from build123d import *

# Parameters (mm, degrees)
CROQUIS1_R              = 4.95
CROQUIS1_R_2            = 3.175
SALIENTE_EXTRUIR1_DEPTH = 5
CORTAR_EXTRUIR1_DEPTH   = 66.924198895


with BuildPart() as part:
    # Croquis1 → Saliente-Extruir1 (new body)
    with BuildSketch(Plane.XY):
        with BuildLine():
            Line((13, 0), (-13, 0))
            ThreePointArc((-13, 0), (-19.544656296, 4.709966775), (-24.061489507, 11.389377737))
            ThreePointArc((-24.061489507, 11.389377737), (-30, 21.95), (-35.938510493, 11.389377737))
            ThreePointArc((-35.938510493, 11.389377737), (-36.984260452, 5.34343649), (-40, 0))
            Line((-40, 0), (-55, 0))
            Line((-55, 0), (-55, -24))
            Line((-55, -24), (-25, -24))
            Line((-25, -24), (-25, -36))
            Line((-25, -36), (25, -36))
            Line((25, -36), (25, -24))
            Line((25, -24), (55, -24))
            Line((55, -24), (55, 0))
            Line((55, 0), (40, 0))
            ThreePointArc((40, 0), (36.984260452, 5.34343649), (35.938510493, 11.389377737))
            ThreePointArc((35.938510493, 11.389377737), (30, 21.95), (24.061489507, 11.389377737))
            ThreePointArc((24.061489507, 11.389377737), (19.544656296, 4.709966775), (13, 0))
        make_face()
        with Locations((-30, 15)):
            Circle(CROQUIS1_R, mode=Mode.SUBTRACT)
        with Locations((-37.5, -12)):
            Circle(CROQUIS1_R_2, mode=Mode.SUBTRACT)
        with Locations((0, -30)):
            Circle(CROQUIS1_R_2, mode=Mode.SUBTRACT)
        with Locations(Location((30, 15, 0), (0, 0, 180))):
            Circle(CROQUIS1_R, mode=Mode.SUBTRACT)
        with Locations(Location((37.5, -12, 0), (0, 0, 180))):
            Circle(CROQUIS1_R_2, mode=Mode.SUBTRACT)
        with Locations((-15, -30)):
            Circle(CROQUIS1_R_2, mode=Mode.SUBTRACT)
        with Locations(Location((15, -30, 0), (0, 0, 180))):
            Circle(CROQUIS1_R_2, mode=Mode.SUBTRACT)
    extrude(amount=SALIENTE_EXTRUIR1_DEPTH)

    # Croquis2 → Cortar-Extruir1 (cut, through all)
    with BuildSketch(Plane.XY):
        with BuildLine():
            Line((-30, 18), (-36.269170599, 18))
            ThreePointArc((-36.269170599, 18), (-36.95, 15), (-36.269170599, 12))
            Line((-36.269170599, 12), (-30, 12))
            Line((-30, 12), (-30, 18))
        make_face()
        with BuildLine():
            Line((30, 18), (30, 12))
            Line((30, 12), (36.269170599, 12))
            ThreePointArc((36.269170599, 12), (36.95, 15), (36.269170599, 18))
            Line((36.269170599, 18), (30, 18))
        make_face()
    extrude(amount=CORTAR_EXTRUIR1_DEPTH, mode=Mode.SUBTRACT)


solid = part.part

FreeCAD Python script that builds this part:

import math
import FreeCAD as App
import Part
import Sketcher

V = App.Vector
Q = App.Units.Quantity

doc = App.newDocument("Part")
body = doc.addObject("PartDesign::Body", "Body")

# Sketch on XY plane
sketch1 = body.newObject("Sketcher::SketchObject", "Sketch")
sketch1.AttachmentSupport = (doc.getObject("XY_Plane"), [""])
sketch1.MapMode = "FlatFace"
sketch1.addGeometry([
    Part.LineSegment(V(13, 0, 0), V(-13, 0, 0)),  # 0
    Part.ArcOfCircle(Part.Circle(V(-3, 20.7, 0), V(0, 0, 1), 23), math.radians(-156), math.radians(-116)),  # 1
    Part.ArcOfCircle(Part.Circle(V(-30, 15, 0), V(0, 0, 1), 7), math.radians(-31), math.radians(211)),  # 2
    Part.ArcOfCircle(Part.Circle(V(-53.9, 11.4, 0), V(0, 0, 1), 18), math.radians(-39), math.radians(0)),  # 3
    Part.LineSegment(V(-40, 0, 0), V(-55, 0, 0)),  # 4
    Part.LineSegment(V(-55, 0, 0), V(-55, -24, 0)),  # 5
    Part.LineSegment(V(-55, -24, 0), V(-25, -24, 0)),  # 6
    Part.LineSegment(V(-25, -24, 0), V(-25, -36, 0)),  # 7
    Part.LineSegment(V(-25, -36, 0), V(25, -36, 0)),  # 8
    Part.LineSegment(V(25, -36, 0), V(25, -24, 0)),  # 9
    Part.LineSegment(V(25, -24, 0), V(55, -24, 0)),  # 10
    Part.LineSegment(V(55, -24, 0), V(55, 0, 0)),  # 11
    Part.LineSegment(V(55, 0, 0), V(40, 0, 0)),  # 12
    Part.ArcOfCircle(Part.Circle(V(53.9, 11.4, 0), V(0, 0, 1), 18), math.radians(180), math.radians(219)),  # 13
    Part.ArcOfCircle(Part.Circle(V(30, 15, 0), V(0, 0, 1), 7), math.radians(-31), math.radians(211)),  # 14
    Part.ArcOfCircle(Part.Circle(V(3, 20.7, 0), V(0, 0, 1), 23), math.radians(-64), math.radians(-24)),  # 15
    Part.Circle(V(-15, -30, 0), V(0, 0, 1), 3.2),  # 16
    Part.Circle(V(-37.5, -12, 0), V(0, 0, 1), 3.2),  # 17
    Part.Circle(V(0, -30, 0), V(0, 0, 1), 3.2),  # 18
    Part.Circle(V(15, -30, 0), V(0, 0, 1), 3.2),  # 19
    Part.Circle(V(37.5, -12, 0), V(0, 0, 1), 3.2),  # 20
    Part.Circle(V(-30, 15, 0), V(0, 0, 1), 5),  # 21
    Part.Circle(V(30, 15, 0), V(0, 0, 1), 5),  # 22
], False)
sketch1.addConstraint([
    Sketcher.Constraint("Coincident", 0, 2, 1, 2),
    Sketcher.Constraint("Coincident", 1, 1, 2, 1),
    Sketcher.Constraint("Coincident", 2, 2, 3, 2),
    Sketcher.Constraint("Coincident", 3, 1, 4, 1),
    Sketcher.Constraint("Coincident", 4, 2, 5, 1),
    Sketcher.Constraint("Coincident", 5, 2, 6, 1),
    Sketcher.Constraint("Coincident", 6, 2, 7, 1),
    Sketcher.Constraint("Coincident", 7, 2, 8, 1),
    Sketcher.Constraint("Coincident", 8, 2, 9, 1),
    Sketcher.Constraint("Coincident", 9, 2, 10, 1),
    Sketcher.Constraint("Coincident", 10, 2, 11, 1),
    Sketcher.Constraint("Coincident", 11, 2, 12, 1),
    Sketcher.Constraint("Coincident", 12, 2, 13, 2),
    Sketcher.Constraint("Coincident", 13, 1, 14, 1),
    Sketcher.Constraint("Coincident", 14, 2, 15, 2),
    Sketcher.Constraint("Coincident", 15, 1, 0, 1),
    Sketcher.Constraint("Horizontal", 0),
    Sketcher.Constraint("Horizontal", 4),
    Sketcher.Constraint("Vertical", 5),
    Sketcher.Constraint("Horizontal", 6),
    Sketcher.Constraint("Vertical", 7),
    Sketcher.Constraint("Horizontal", 8),
    Sketcher.Constraint("Vertical", 9),
    Sketcher.Constraint("Horizontal", 10),
    Sketcher.Constraint("Vertical", 11),
    Sketcher.Constraint("Horizontal", 12),
    Sketcher.Constraint("Coincident", 21, 3, 2, 3),
    Sketcher.Constraint("Coincident", 22, 3, 14, 3),
    Sketcher.Constraint("Equal", 3, 13),
    Sketcher.Constraint("Equal", 2, 14),
    Sketcher.Constraint("Equal", 1, 15),
    Sketcher.Constraint("Equal", 16, 17),
    Sketcher.Constraint("Equal", 17, 18),
    Sketcher.Constraint("Equal", 18, 19),
    Sketcher.Constraint("Equal", 19, 20),
    Sketcher.Constraint("Equal", 21, 22),
    Sketcher.Constraint("Symmetric", 4, 2, 11, 2, -1, 1),
    Sketcher.Constraint("Symmetric", 0, 2, 15, 1, -1, 1),
    Sketcher.Constraint("Symmetric", 3, 3, 13, 3, -2),
    Sketcher.Constraint("Symmetric", 2, 3, 14, 3, -2),
    Sketcher.Constraint("Symmetric", 16, 3, 19, 3, -2),
    Sketcher.Constraint("Symmetric", 17, 3, 20, 3, -2),
    Sketcher.Constraint("Symmetric", 6, 2, 9, 2, -2),
    Sketcher.Constraint("PointOnObject", 18, 3, -2),
    Sketcher.Constraint("PointOnObject", 3, 1, -1),
    Sketcher.Constraint("Horizontal", 1, 3, 15, 3),
    Sketcher.Constraint("Horizontal", 16, 3, 18, 3),
    Sketcher.Constraint("Horizontal", 13, 3, 1, 1),
    Sketcher.Constraint("Horizontal", 1, 1, 2, 2),
    Sketcher.Constraint("Radius", 1, Q("23 mm")),
    Sketcher.Constraint("Radius", 3, Q("18 mm")),
    Sketcher.Constraint("Diameter", 21, Q("9.9 mm")),
    Sketcher.Constraint("Diameter", 16, Q("6.35 mm")),
    Sketcher.Constraint("DistanceX", 0, 2, 0, 1, Q("26 mm")),
    Sketcher.Constraint("DistanceX", 4, 2, 4, 1, Q("15 mm")),
    Sketcher.Constraint("DistanceX", 6, 1, 6, 2, Q("30 mm")),
    Sketcher.Constraint("DistanceX", 8, 1, 8, 2, Q("50 mm")),
    Sketcher.Constraint("DistanceY", 5, 2, 5, 1, Q("24 mm")),
    Sketcher.Constraint("DistanceY", 7, 2, 7, 1, Q("12 mm")),
    Sketcher.Constraint("Radius", 2, Q("6.95 mm")),
    Sketcher.Constraint("DistanceX", 2, 3, -1, 1, Q("30 mm")),
    Sketcher.Constraint("DistanceY", -1, 1, 2, 3, Q("15 mm")),
    Sketcher.Constraint("DistanceX", 16, 3, -1, 1, Q("15 mm")),
    Sketcher.Constraint("DistanceY", 16, 3, -1, 1, Q("30 mm")),
    Sketcher.Constraint("DistanceY", 17, 3, -1, 1, Q("12 mm")),
    Sketcher.Constraint("DistanceX", 17, 3, -1, 1, Q("37.5 mm")),
])
pad1 = body.newObject("PartDesign::Pad", "Pad")
pad1.Profile = sketch1
pad1.Length = 5

# Sketch on XY plane
sketch2 = body.newObject("Sketcher::SketchObject", "Sketch001")
sketch2.AttachmentSupport = (doc.getObject("XY_Plane"), [""])
sketch2.MapMode = "FlatFace"
sketch2.addGeometry([
    Part.LineSegment(V(-30, 18, 0), V(-36, 18, 0)),  # 0
    Part.ArcOfCircle(Part.Circle(V(-30, 15, 0), V(0, 0, 1), 7), math.radians(154), math.radians(206)),  # 1
    Part.LineSegment(V(-36, 12, 0), V(-30, 12, 0)),  # 2
    Part.LineSegment(V(-30, 12, 0), V(-30, 18, 0)),  # 3
    Part.LineSegment(V(30, 18, 0), V(30, 12, 0)),  # 4
    Part.LineSegment(V(30, 12, 0), V(36, 12, 0)),  # 5
    Part.ArcOfCircle(Part.Circle(V(30, 15, 0), V(0, 0, 1), 7), math.radians(-26), math.radians(26)),  # 6
    Part.LineSegment(V(36, 18, 0), V(30, 18, 0)),  # 7
], False)
sketch2.addConstraint([
    Sketcher.Constraint("Coincident", 0, 2, 1, 1),
    Sketcher.Constraint("Coincident", 1, 2, 2, 1),
    Sketcher.Constraint("Coincident", 2, 2, 3, 1),
    Sketcher.Constraint("Coincident", 3, 2, 0, 1),
    Sketcher.Constraint("Coincident", 4, 2, 5, 1),
    Sketcher.Constraint("Coincident", 5, 2, 6, 1),
    Sketcher.Constraint("Coincident", 6, 2, 7, 1),
    Sketcher.Constraint("Coincident", 7, 2, 4, 1),
    Sketcher.Constraint("Horizontal", 0),
    Sketcher.Constraint("Horizontal", 2),
    Sketcher.Constraint("Vertical", 3),
    Sketcher.Constraint("Vertical", 4),
    Sketcher.Constraint("Horizontal", 5),
    Sketcher.Constraint("Horizontal", 7),
    Sketcher.Constraint("Equal", 1, 6),
    Sketcher.Constraint("Symmetric", 1, 3, 6, 3, -2),
    Sketcher.Constraint("Symmetric", 2, 2, 4, 2, -2),
    Sketcher.Constraint("Horizontal", 3, 2, 6, 2),
    Sketcher.Constraint("Vertical", 0, 2, 1, 2),
    Sketcher.Constraint("Vertical", 1, 3, 2, 2),
    Sketcher.Constraint("DistanceY", 3, 1, 3, 2, Q("6 mm")),
    Sketcher.Constraint("Radius", 1, Q("6.95 mm")),
    Sketcher.Constraint("DistanceX", 1, 3, -1, 1, Q("30 mm")),
    Sketcher.Constraint("DistanceY", -1, 1, 1, 3, Q("15 mm")),
])
pocket1 = body.newObject("PartDesign::Pocket", "Pocket")
pocket1.Profile = sketch2
pocket1.Type = "ThroughAll"
pocket1.Reversed = True

doc.recompute()
